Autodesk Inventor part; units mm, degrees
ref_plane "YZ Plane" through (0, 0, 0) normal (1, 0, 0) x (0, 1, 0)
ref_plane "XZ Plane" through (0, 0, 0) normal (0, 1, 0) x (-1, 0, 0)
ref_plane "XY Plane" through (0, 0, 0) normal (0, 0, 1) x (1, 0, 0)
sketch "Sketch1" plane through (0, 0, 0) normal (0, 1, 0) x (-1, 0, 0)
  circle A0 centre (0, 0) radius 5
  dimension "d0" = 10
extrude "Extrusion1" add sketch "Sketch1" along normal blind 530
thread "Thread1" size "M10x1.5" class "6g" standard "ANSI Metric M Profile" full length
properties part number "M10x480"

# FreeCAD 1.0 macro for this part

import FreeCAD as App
import Part
import Sketcher
from FreeCAD import Vector

doc = App.newDocument("Part")
params = doc.addObject("Spreadsheet::Sheet", "Params")
for row, (alias, value) in enumerate([
    ("sketch1_diameter", "10 mm"),
    ("pad1_length", "530 mm"),
], start=1):
    params.set(f"A{row}", alias)
    params.set(f"B{row}", "=" + value)
    params.setAlias(f"B{row}", alias)

body = doc.addObject("PartDesign::Body", "Body")

# Sketch on XZ plane
sketch1 = body.newObject("Sketcher::SketchObject", "Sketch")
sketch1.AttachmentSupport = (doc.getObject("XZ_Plane"), [""])
sketch1.MapMode = "FlatFace"
sketch1.addGeometry(Part.Circle(Vector(0, 0, 0), Vector(0, 0, 1), 5), False)
sketch1.addConstraint([
    Sketcher.Constraint("Coincident", 0, 3, -1, 1),
    Sketcher.Constraint("Diameter", 0, 10.0),
])
sketch1.setExpression("Constraints[1]", "Params.sketch1_diameter")
pad1 = body.newObject("PartDesign::Pad", "Pad")
pad1.Profile = sketch1
pad1.setExpression("Length", "Params.pad1_length")
pad1.Reversed = True

doc.recompute()
